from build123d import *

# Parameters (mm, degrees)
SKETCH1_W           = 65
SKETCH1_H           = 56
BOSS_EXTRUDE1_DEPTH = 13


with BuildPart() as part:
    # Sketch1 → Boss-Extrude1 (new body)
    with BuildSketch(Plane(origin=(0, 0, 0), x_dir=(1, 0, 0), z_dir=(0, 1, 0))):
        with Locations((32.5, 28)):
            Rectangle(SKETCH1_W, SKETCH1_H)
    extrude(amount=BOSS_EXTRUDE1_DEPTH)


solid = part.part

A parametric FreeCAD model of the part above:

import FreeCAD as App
import Part
import Sketcher
from FreeCAD import Vector
Q = App.Units.Quantity

doc = App.newDocument("Part")
body = doc.addObject("PartDesign::Body", "Body")

sketch1 = body.newObject("Sketcher::SketchObject", "Sketch")
sketch1.AttachmentSupport = (doc.getObject("XZ_Plane"), [""])
sketch1.MapMode = "FlatFace"
sketch1.addGeometry([
    Part.LineSegment(Vector(0, -56, 0), Vector(0, 0, 0)),
    Part.LineSegment(Vector(0, 0, 0), Vector(65, 0, 0)),
    Part.LineSegment(Vector(65, 0, 0), Vector(65, -56, 0)),
    Part.LineSegment(Vector(65, -56, 0), Vector(0, -56, 0)),
], False)
sketch1.addConstraint([
    Sketcher.Constraint("Coincident", 0, 2, 1, 1),
    Sketcher.Constraint("Coincident", 1, 2, 2, 1),
    Sketcher.Constraint("Coincident", 2, 2, 3, 1),
    Sketcher.Constraint("Coincident", 3, 2, 0, 1),
    Sketcher.Constraint("Vertical", 0),
    Sketcher.Constraint("Horizontal", 1),
    Sketcher.Constraint("Vertical", 2),
    Sketcher.Constraint("Horizontal", 3),
    Sketcher.Constraint("Coincident", 0, 2, -1, 1),
    Sketcher.Constraint("DistanceX", 1, 1, 1, 2, Q("65 mm")),
    Sketcher.Constraint("DistanceY", 0, 1, 0, 2, Q("56 mm")),
])
pad1 = body.newObject("PartDesign::Pad", "Pad")
pad1.Profile = sketch1
pad1.Length = 13
pad1.Reversed = True

doc.recompute()
